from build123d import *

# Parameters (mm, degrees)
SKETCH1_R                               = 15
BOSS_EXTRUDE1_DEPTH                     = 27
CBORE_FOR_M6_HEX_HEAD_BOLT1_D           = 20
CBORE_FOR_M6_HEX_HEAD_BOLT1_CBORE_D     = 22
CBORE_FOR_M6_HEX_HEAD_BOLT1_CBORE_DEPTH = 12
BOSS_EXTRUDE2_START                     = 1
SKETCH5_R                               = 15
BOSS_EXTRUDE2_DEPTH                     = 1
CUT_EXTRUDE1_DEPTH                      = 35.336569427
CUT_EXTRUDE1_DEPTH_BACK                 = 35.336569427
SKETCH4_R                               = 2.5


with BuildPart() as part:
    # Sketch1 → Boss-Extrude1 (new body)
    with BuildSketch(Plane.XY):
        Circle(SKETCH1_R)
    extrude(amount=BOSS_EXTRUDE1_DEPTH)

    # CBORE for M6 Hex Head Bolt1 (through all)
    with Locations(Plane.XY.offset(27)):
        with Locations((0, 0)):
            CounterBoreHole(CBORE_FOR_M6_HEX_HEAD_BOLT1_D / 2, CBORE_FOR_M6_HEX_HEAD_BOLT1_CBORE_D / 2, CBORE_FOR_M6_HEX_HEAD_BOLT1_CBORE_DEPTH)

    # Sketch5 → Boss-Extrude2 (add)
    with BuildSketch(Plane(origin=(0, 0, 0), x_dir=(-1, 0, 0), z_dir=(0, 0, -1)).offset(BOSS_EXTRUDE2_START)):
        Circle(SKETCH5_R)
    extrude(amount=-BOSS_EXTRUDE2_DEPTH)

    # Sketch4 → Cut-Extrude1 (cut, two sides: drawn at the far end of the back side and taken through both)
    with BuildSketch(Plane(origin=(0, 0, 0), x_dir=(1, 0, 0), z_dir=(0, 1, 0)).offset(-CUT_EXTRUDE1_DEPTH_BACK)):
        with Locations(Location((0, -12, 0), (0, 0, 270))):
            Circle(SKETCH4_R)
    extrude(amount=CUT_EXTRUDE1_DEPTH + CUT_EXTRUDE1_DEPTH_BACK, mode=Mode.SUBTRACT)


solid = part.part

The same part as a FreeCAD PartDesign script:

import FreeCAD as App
import Part
import Sketcher

doc = App.newDocument("Part")
body = doc.addObject("PartDesign::Body", "Body")

sketch1 = body.newObject("Sketcher::SketchObject", "Sketch")
sketch1.AttachmentSupport = (doc.getObject("XY_Plane"), [""])
sketch1.MapMode = "FlatFace"
sketch1.addGeometry(Part.Circle(App.Vector(0, 0, 0), App.Vector(0, 0, 1), 15), False)
sketch1.addConstraint(Sketcher.Constraint("Coincident", 0, 3, -1, 1))
sketch1.addConstraint(Sketcher.Constraint("Diameter", 0, 30.0))
pad1 = body.newObject("PartDesign::Pad", "Pad")
pad1.Profile = sketch1
pad1.Length = 27

sketch2 = body.newObject("Sketcher::SketchObject", "Sketch001")
sketch2.AttachmentSupport = (doc.getObject("XY_Plane"), [""])
sketch2.MapMode = "FlatFace"
sketch2.AttachmentOffset = App.Placement(App.Vector(0, 0, 27), App.Rotation())
sketch2.addGeometry(Part.Circle(App.Vector(0, 0, 0), App.Vector(0, 0, 1), 10), False)
sketch2.addConstraint(Sketcher.Constraint("Coincident", 0, 3, -1, 1))
sketch2.addConstraint(Sketcher.Constraint("Diameter", 0, 20.0))
doc.recompute()
hole = body.newObject("PartDesign::Hole", "Hole")
hole.Profile = sketch2
hole.ThreadType = "None"
hole.Diameter = 20
hole.DepthType = "ThroughAll"
hole.HoleCutType = "Counterbore"
hole.HoleCutDiameter = 22
hole.HoleCutDepth = 12

sketch3 = body.newObject("Sketcher::SketchObject", "Sketch002")
sketch3.AttachmentSupport = (doc.getObject("XY_Plane"), [""])
sketch3.MapMode = "FlatFace"
sketch3.AttachmentOffset = App.Placement(App.Vector(0, 0, -1), App.Rotation())
sketch3.addGeometry(Part.Circle(App.Vector(0, 0, 0), App.Vector(0, 0, 1), 15), False)
sketch3.addConstraint(Sketcher.Constraint("Coincident", 0, 3, -1, 1))
sketch3.addConstraint(Sketcher.Constraint("Diameter", 0, 30.0))
pad2 = body.newObject("PartDesign::Pad", "Pad001")
pad2.Profile = sketch3
pad2.Length = 1

sketch4 = body.newObject("Sketcher::SketchObject", "Sketch003")
sketch4.AttachmentSupport = (doc.getObject("XZ_Plane"), [""])
sketch4.MapMode = "FlatFace"
sketch4.addGeometry(Part.Circle(App.Vector(0, 12, 0), App.Vector(0, 0, 1), 2.5), False)
sketch4.addConstraint(Sketcher.Constraint("PointOnObject", 0, 3, -2))
sketch4.addConstraint(Sketcher.Constraint("Diameter", 0, 5.0))
sketch4.addConstraint(Sketcher.Constraint("DistanceY", -1, 1, 0, 3, 12.0))
pocket1 = body.newObject("PartDesign::Pocket", "Pocket")
pocket1.Profile = sketch4
pocket1.Type = "ThroughAll"
pocket1.Midplane = True

doc.recompute()
